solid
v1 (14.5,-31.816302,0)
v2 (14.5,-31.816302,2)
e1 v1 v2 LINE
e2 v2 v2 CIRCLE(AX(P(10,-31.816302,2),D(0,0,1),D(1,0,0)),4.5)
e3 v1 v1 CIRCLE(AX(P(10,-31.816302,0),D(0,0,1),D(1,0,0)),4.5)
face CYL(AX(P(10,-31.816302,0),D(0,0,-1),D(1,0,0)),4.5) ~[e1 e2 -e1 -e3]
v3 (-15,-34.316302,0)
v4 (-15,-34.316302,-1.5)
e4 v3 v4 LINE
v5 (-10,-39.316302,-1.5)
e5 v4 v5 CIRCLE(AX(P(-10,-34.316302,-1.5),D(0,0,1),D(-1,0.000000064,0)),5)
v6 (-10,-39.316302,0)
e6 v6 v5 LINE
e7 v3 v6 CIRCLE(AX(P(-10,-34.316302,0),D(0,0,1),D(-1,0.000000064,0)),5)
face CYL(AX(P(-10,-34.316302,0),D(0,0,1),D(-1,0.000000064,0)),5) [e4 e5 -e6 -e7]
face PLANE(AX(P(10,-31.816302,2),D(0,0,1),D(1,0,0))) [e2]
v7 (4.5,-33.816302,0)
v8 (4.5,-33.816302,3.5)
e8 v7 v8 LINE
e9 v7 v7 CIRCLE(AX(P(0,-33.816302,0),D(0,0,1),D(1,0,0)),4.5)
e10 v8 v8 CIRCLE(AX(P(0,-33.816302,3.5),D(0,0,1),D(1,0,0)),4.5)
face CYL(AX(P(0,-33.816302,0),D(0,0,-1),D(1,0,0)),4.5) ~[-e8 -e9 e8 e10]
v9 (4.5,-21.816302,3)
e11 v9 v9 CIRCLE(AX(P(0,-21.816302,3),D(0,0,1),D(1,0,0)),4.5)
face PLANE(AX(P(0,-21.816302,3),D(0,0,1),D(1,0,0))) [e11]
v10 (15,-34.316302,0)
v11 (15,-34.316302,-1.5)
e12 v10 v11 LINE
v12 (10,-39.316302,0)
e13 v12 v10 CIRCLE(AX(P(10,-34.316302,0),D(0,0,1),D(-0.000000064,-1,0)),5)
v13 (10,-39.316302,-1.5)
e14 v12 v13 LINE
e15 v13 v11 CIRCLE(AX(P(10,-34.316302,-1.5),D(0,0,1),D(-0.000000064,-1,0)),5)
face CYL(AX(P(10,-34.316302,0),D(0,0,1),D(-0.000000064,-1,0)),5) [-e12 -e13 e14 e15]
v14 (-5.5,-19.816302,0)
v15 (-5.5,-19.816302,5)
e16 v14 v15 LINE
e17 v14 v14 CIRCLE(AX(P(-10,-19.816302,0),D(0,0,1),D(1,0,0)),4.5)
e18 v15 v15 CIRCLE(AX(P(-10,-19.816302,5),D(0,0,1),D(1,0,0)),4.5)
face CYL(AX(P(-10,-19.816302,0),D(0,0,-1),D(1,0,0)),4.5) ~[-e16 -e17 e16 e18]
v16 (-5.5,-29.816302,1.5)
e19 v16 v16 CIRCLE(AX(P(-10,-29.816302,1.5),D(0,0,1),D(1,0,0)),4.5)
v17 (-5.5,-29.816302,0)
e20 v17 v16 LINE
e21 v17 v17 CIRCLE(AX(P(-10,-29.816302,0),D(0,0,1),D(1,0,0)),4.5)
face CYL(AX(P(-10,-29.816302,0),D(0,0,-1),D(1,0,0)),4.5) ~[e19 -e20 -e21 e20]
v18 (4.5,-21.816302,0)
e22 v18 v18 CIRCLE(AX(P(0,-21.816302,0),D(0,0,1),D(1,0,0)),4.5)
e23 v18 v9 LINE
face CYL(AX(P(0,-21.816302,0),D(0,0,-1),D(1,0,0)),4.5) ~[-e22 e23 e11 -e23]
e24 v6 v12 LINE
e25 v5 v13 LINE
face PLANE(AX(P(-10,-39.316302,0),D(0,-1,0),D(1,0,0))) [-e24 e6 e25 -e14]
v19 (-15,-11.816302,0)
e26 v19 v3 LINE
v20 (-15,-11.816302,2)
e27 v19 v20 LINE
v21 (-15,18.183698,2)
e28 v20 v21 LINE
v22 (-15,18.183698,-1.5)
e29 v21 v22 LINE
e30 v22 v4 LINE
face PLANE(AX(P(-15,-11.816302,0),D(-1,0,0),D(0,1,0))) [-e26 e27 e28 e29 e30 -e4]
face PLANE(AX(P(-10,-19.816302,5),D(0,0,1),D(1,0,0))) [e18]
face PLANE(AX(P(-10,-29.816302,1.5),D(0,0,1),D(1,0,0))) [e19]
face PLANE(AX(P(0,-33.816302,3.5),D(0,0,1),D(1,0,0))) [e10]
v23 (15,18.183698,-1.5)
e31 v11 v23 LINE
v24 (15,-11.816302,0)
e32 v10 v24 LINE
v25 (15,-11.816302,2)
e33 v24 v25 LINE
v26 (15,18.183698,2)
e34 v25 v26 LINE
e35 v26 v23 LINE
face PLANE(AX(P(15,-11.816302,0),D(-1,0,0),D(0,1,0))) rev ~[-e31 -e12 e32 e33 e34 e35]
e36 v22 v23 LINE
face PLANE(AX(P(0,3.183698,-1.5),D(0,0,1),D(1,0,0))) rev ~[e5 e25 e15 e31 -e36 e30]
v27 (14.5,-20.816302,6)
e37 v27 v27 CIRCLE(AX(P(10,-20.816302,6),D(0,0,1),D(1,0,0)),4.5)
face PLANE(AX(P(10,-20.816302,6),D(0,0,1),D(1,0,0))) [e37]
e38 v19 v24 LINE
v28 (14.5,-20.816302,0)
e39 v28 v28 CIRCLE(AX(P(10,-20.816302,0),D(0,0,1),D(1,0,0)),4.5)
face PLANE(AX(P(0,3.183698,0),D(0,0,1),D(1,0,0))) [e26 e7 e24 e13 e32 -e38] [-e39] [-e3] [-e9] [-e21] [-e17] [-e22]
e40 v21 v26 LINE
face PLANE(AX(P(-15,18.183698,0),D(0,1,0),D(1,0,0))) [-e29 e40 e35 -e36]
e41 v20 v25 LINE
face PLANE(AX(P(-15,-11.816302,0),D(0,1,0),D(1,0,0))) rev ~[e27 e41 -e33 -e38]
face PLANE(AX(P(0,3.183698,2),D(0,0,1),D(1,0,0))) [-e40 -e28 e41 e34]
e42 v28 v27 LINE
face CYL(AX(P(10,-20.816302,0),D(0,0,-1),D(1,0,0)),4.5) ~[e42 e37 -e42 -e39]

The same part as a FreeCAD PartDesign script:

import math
import FreeCAD as App
import Part
import Sketcher
from FreeCAD import Vector

doc = App.newDocument("Part")
params = doc.addObject("Spreadsheet::Sheet", "Params")
for row, (alias, value) in enumerate([
    ("sketch1_radius", "5 mm"),
    ("sketch1_width", "20 mm"),
    ("sketch1_height", "52.5 mm"),
    ("pad1_length", "1.5 mm"),
    ("sketch2_width", "30 mm"),
    ("pad2_length", "2 mm"),
    ("sketch3_diameter", "9 mm"),
    ("pad3_length", "5 mm"),
    ("sketch4_diameter", "9 mm"),
    ("pad4_length", "3 mm"),
    ("sketch5_diameter", "9 mm"),
    ("pad5_length", "6 mm"),
    ("sketch6_diameter", "9 mm"),
    ("pad6_length", "2 mm"),
    ("sketch7_diameter", "9 mm"),
    ("pad7_length", "3.5 mm"),
    ("sketch8_diameter", "9 mm"),
    ("pad8_length", "1.5 mm"),
], start=1):
    params.set(f"A{row}", alias)
    params.set(f"B{row}", "=" + value)
    params.setAlias(f"B{row}", alias)

body = doc.addObject("PartDesign::Body", "Body")

# Sketch on XY plane
sketch1 = body.newObject("Sketcher::SketchObject", "Sketch")
sketch1.AttachmentSupport = (doc.getObject("XY_Plane"), [""])
sketch1.MapMode = "FlatFace"
sketch1.addGeometry([
    Part.LineSegment(Vector(-15, 18.2, 0), Vector(-15, -34.3, 0)),  # 0
    Part.ArcOfCircle(Part.Circle(Vector(-10, -34.3, 0), Vector(0, 0, 1), 5), math.radians(180), math.radians(270)),  # 1
    Part.LineSegment(Vector(-10, -39.3, 0), Vector(10, -39.3, 0)),  # 2
    Part.ArcOfCircle(Part.Circle(Vector(10, -34.3, 0), Vector(0, 0, 1), 5), math.radians(-90), math.radians(0)),  # 3
    Part.LineSegment(Vector(15, -34.3, 0), Vector(15, 18.2, 0)),  # 4
    Part.LineSegment(Vector(15, 18.2, 0), Vector(-15, 18.2, 0)),  # 5
], False)
sketch1.addConstraint([
    Sketcher.Constraint("Tangent", 0, 2, 1, 1),
    Sketcher.Constraint("Tangent", 1, 2, 2, 1),
    Sketcher.Constraint("Tangent", 2, 2, 3, 1),
    Sketcher.Constraint("Tangent", 3, 2, 4, 1),
    Sketcher.Constraint("Coincident", 4, 2, 5, 1),
    Sketcher.Constraint("Coincident", 5, 2, 0, 1),
    Sketcher.Constraint("Vertical", 0),
    Sketcher.Constraint("Horizontal", 2),
    Sketcher.Constraint("Vertical", 4),
    Sketcher.Constraint("Horizontal", 5),
    Sketcher.Constraint("Equal", 1, 3),
    Sketcher.Constraint("Radius", 1, 5.0),
    Sketcher.Constraint("DistanceX", 2, 1, 2, 2, 20.0),
    Sketcher.Constraint("DistanceY", 0, 2, 0, 1, 52.5),
    Sketcher.Constraint("DistanceX", 1, 3, -1, 1, 10.0),
    Sketcher.Constraint("DistanceY", 1, 2, -1, 1, 39.316302),
])
sketch1.setExpression("Constraints[11]", "Params.sketch1_radius")
sketch1.setExpression("Constraints[12]", "Params.sketch1_width")
sketch1.setExpression("Constraints[13]", "Params.sketch1_height")
pad1 = body.newObject("PartDesign::Pad", "Pad")
pad1.Profile = sketch1
pad1.setExpression("Length", "Params.pad1_length")
pad1.Reversed = True

# Sketch on XY plane
sketch2 = body.newObject("Sketcher::SketchObject", "Sketch001")
sketch2.AttachmentSupport = (doc.getObject("XY_Plane"), [""])
sketch2.MapMode = "FlatFace"
sketch2.addGeometry([
    Part.LineSegment(Vector(-15, 18, 0), Vector(-15, -12, 0)),
    Part.LineSegment(Vector(-15, -12, 0), Vector(15, -12, 0)),
    Part.LineSegment(Vector(15, -12, 0), Vector(15, 18, 0)),
    Part.LineSegment(Vector(15, 18, 0), Vector(-15, 18, 0)),
], False)
sketch2.addConstraint([
    Sketcher.Constraint("Coincident", 0, 2, 1, 1),
    Sketcher.Constraint("Coincident", 1, 2, 2, 1),
    Sketcher.Constraint("Coincident", 2, 2, 3, 1),
    Sketcher.Constraint("Coincident", 3, 2, 0, 1),
    Sketcher.Constraint("Vertical", 0),
    Sketcher.Constraint("Horizontal", 1),
    Sketcher.Constraint("Vertical", 2),
    Sketcher.Constraint("Horizontal", 3),
    Sketcher.Constraint("Equal", 3, 0),
    Sketcher.Constraint("DistanceX", 1, 1, 1, 2, 30.0),
    Sketcher.Constraint("DistanceX", 0, 2, -1, 1, 15.0),
    Sketcher.Constraint("DistanceY", 0, 2, -1, 1, 11.816302),
])
sketch2.setExpression("Constraints[9]", "Params.sketch2_width")
pad2 = body.newObject("PartDesign::Pad", "Pad001")
pad2.Profile = sketch2
pad2.setExpression("Length", "Params.pad2_length")

# Sketch on XY plane
sketch3 = body.newObject("Sketcher::SketchObject", "Sketch002")
sketch3.AttachmentSupport = (doc.getObject("XY_Plane"), [""])
sketch3.MapMode = "FlatFace"
sketch3.addGeometry(Part.Circle(Vector(-10, -19.8, 0), Vector(0, 0, 1), 4.5), False)
sketch3.addConstraint([
    Sketcher.Constraint("Diameter", 0, 9.0),
    Sketcher.Constraint("DistanceX", 0, 3, -1, 1, 10.0),
    Sketcher.Constraint("DistanceY", 0, 3, -1, 1, 19.816302),
])
sketch3.setExpression("Constraints[0]", "Params.sketch3_diameter")
pad3 = body.newObject("PartDesign::Pad", "Pad002")
pad3.Profile = sketch3
pad3.setExpression("Length", "Params.pad3_length")

# Sketch on XY plane
sketch4 = body.newObject("Sketcher::SketchObject", "Sketch003")
sketch4.AttachmentSupport = (doc.getObject("XY_Plane"), [""])
sketch4.MapMode = "FlatFace"
sketch4.addGeometry(Part.Circle(Vector(0, -21.8, 0), Vector(0, 0, 1), 4.5), False)
sketch4.addConstraint([
    Sketcher.Constraint("PointOnObject", 0, 3, -2),
    Sketcher.Constraint("Diameter", 0, 9.0),
    Sketcher.Constraint("DistanceY", 0, 3, -1, 1, 21.816302),
])
sketch4.setExpression("Constraints[1]", "Params.sketch4_diameter")
pad4 = body.newObject("PartDesign::Pad", "Pad003")
pad4.Profile = sketch4
pad4.setExpression("Length", "Params.pad4_length")

# Sketch on XY plane
sketch5 = body.newObject("Sketcher::SketchObject", "Sketch004")
sketch5.AttachmentSupport = (doc.getObject("XY_Plane"), [""])
sketch5.MapMode = "FlatFace"
sketch5.addGeometry(Part.Circle(Vector(10, -20.8, 0), Vector(0, 0, 1), 4.5), False)
sketch5.addConstraint([
    Sketcher.Constraint("Diameter", 0, 9.0),
    Sketcher.Constraint("DistanceX", -1, 1, 0, 3, 10.0),
    Sketcher.Constraint("DistanceY", 0, 3, -1, 1, 20.816302),
])
sketch5.setExpression("Constraints[0]", "Params.sketch5_diameter")
pad5 = body.newObject("PartDesign::Pad", "Pad004")
pad5.Profile = sketch5
pad5.setExpression("Length", "Params.pad5_length")

# Sketch on XY plane
sketch6 = body.newObject("Sketcher::SketchObject", "Sketch005")
sketch6.AttachmentSupport = (doc.getObject("XY_Plane"), [""])
sketch6.MapMode = "FlatFace"
sketch6.addGeometry(Part.Circle(Vector(10, -31.8, 0), Vector(0, 0, 1), 4.5), False)
sketch6.addConstraint([
    Sketcher.Constraint("Diameter", 0, 9.0),
    Sketcher.Constraint("DistanceX", -1, 1, 0, 3, 10.0),
    Sketcher.Constraint("DistanceY", 0, 3, -1, 1, 31.816302),
])
sketch6.setExpression("Constraints[0]", "Params.sketch6_diameter")
pad6 = body.newObject("PartDesign::Pad", "Pad005")
pad6.Profile = sketch6
pad6.setExpression("Length", "Params.pad6_length")

# Sketch on XY plane
sketch7 = body.newObject("Sketcher::SketchObject", "Sketch006")
sketch7.AttachmentSupport = (doc.getObject("XY_Plane"), [""])
sketch7.MapMode = "FlatFace"
sketch7.addGeometry(Part.Circle(Vector(0, -33.8, 0), Vector(0, 0, 1), 4.5), False)
sketch7.addConstraint([
    Sketcher.Constraint("PointOnObject", 0, 3, -2),
    Sketcher.Constraint("Diameter", 0, 9.0),
    Sketcher.Constraint("DistanceY", 0, 3, -1, 1, 33.816302),
])
sketch7.setExpression("Constraints[1]", "Params.sketch7_diameter")
pad7 = body.newObject("PartDesign::Pad", "Pad006")
pad7.Profile = sketch7
pad7.setExpression("Length", "Params.pad7_length")

# Sketch on XY plane
sketch8 = body.newObject("Sketcher::SketchObject", "Sketch007")
sketch8.AttachmentSupport = (doc.getObject("XY_Plane"), [""])
sketch8.MapMode = "FlatFace"
sketch8.addGeometry(Part.Circle(Vector(-10, -29.8, 0), Vector(0, 0, 1), 4.5), False)
sketch8.addConstraint([
    Sketcher.Constraint("Diameter", 0, 9.0),
    Sketcher.Constraint("DistanceX", 0, 3, -1, 1, 10.0),
    Sketcher.Constraint("DistanceY", 0, 3, -1, 1, 29.816302),
])
sketch8.setExpression("Constraints[0]", "Params.sketch8_diameter")
pad8 = body.newObject("PartDesign::Pad", "Pad007")
pad8.Profile = sketch8
pad8.setExpression("Length", "Params.pad8_length")

doc.recompute()
